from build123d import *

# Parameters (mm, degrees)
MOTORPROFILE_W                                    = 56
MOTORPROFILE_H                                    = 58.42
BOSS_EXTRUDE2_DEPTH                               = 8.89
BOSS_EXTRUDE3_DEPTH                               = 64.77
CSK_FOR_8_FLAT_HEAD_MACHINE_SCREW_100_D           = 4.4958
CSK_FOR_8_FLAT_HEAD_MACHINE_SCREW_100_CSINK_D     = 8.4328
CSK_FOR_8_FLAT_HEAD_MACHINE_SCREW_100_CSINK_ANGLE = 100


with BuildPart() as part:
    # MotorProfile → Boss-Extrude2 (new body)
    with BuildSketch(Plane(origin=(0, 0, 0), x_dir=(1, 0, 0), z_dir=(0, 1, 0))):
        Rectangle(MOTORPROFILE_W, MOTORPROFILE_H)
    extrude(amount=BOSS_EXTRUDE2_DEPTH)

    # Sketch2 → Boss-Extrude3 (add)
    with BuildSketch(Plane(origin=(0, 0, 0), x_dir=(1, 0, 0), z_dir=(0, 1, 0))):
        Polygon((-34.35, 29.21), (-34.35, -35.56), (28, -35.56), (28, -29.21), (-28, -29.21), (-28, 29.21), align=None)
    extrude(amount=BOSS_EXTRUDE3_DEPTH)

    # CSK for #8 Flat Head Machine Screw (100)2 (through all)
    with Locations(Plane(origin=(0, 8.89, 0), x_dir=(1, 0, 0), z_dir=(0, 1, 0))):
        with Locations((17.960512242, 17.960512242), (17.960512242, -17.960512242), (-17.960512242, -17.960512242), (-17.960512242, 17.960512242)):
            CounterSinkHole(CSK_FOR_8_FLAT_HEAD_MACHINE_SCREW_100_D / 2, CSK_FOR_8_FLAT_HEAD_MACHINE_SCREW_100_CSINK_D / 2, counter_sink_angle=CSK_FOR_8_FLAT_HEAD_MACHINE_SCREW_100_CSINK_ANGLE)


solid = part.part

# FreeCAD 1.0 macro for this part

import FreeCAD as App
import Part
import Sketcher
Q = App.Units.Quantity

doc = App.newDocument("Part")
body = doc.addObject("PartDesign::Body", "Body")

sketch1 = body.newObject("Sketcher::SketchObject", "Sketch")
sketch1.AttachmentSupport = (doc.getObject("XZ_Plane"), [""])
sketch1.MapMode = "FlatFace"
sketch1.addGeometry([
    Part.LineSegment(App.Vector(-28, -29, 0), App.Vector(-28, 29, 0)),
    Part.LineSegment(App.Vector(-28, 29, 0), App.Vector(28, 29, 0)),
    Part.LineSegment(App.Vector(28, 29, 0), App.Vector(28, -29, 0)),
    Part.LineSegment(App.Vector(28, -29, 0), App.Vector(-28, -29, 0)),
], False)
sketch1.addConstraint([
    Sketcher.Constraint("Coincident", 0, 2, 1, 1),
    Sketcher.Constraint("Coincident", 1, 2, 2, 1),
    Sketcher.Constraint("Coincident", 2, 2, 3, 1),
    Sketcher.Constraint("Coincident", 3, 2, 0, 1),
    Sketcher.Constraint("Vertical", 0),
    Sketcher.Constraint("Horizontal", 1),
    Sketcher.Constraint("Vertical", 2),
    Sketcher.Constraint("Horizontal", 3),
    Sketcher.Constraint("Symmetric", 0, 2, 2, 2, -1, 1),
    Sketcher.Constraint("DistanceY", 0, 1, 0, 2, Q("2.3 in")),
    Sketcher.Constraint("DistanceX", 1, 1, 1, 2, Q("56 mm")),
])
pad1 = body.newObject("PartDesign::Pad", "Pad")
pad1.Profile = sketch1
pad1.Length = Q("0.35 in")
pad1.Reversed = True

sketch2 = body.newObject("Sketcher::SketchObject", "Sketch001")
sketch2.AttachmentSupport = (doc.getObject("XZ_Plane"), [""])
sketch2.MapMode = "FlatFace"
sketch2.addGeometry([
    Part.LineSegment(App.Vector(-34, -29, 0), App.Vector(-34, 36, 0)),
    Part.LineSegment(App.Vector(-34, 36, 0), App.Vector(28, 36, 0)),
    Part.LineSegment(App.Vector(28, 36, 0), App.Vector(28, 29, 0)),
    Part.LineSegment(App.Vector(28, 29, 0), App.Vector(-28, 29, 0)),
    Part.LineSegment(App.Vector(-28, 29, 0), App.Vector(-28, -29, 0)),
    Part.LineSegment(App.Vector(-28, -29, 0), App.Vector(-34, -29, 0)),
], False)
sketch2.addConstraint([
    Sketcher.Constraint("Coincident", 0, 2, 1, 1),
    Sketcher.Constraint("Coincident", 1, 2, 2, 1),
    Sketcher.Constraint("Coincident", 2, 2, 3, 1),
    Sketcher.Constraint("Coincident", 3, 2, 4, 1),
    Sketcher.Constraint("Coincident", 4, 2, 5, 1),
    Sketcher.Constraint("Coincident", 5, 2, 0, 1),
    Sketcher.Constraint("Vertical", 0),
    Sketcher.Constraint("Horizontal", 1),
    Sketcher.Constraint("Vertical", 2),
    Sketcher.Constraint("Horizontal", 3),
    Sketcher.Constraint("Vertical", 4),
    Sketcher.Constraint("Horizontal", 5),
    Sketcher.Constraint("Symmetric", 2, 2, 4, 2, -1, 1),
    Sketcher.Constraint("Equal", 5, 2),
    Sketcher.Constraint("DistanceY", 4, 2, 4, 1, Q("2.3 in")),
    Sketcher.Constraint("DistanceX", 5, 2, 5, 1, Q("0.25 in")),
    Sketcher.Constraint("DistanceX", 1, 1, 1, 2, Q("62.35 mm")),
])
pad2 = body.newObject("PartDesign::Pad", "Pad001")
pad2.Profile = sketch2
pad2.Length = Q("2.55 in")
pad2.Reversed = True

sketch3 = body.newObject("Sketcher::SketchObject", "Sketch002")
sketch3.AttachmentSupport = (doc.getObject("XZ_Plane"), [""])
sketch3.MapMode = "FlatFace"
sketch3.AttachmentOffset = App.Placement(App.Vector(0, 0, -0.35 * 25.4), App.Rotation())
sketch3.addGeometry([
    Part.Circle(App.Vector(18, -18, 0), App.Vector(0, 0, 1), 2.2),
    Part.Circle(App.Vector(18, 18, 0), App.Vector(0, 0, 1), 2.2),
    Part.Circle(App.Vector(-18, 18, 0), App.Vector(0, 0, 1), 2.2),
    Part.Circle(App.Vector(-18, -18, 0), App.Vector(0, 0, 1), 2.2),
], False)
sketch3.addConstraint([
    Sketcher.Constraint("Equal", 0, 1),
    Sketcher.Constraint("Equal", 1, 2),
    Sketcher.Constraint("Equal", 2, 3),
    Sketcher.Constraint("Symmetric", 0, 3, 2, 3, -1, 1),
    Sketcher.Constraint("Symmetric", 1, 3, 3, 3, -1, 1),
    Sketcher.Constraint("Symmetric", 1, 3, 2, 3, -2),
    Sketcher.Constraint("Diameter", 0, Q("0.177 in")),
    Sketcher.Constraint("DistanceX", -1, 1, 0, 3, Q("17.960512 mm")),
    Sketcher.Constraint("DistanceY", 0, 3, -1, 1, Q("17.960512 mm")),
])
doc.recompute()
hole = body.newObject("PartDesign::Hole", "Hole")
hole.Profile = sketch3
hole.ThreadType = "None"
hole.Diameter = Q("0.177 in")
hole.DepthType = "ThroughAll"
hole.HoleCutType = "Countersink"
hole.HoleCutDiameter = Q("0.332 in")
hole.HoleCutCountersinkAngle = 100
hole.Reversed = True

doc.recompute()
